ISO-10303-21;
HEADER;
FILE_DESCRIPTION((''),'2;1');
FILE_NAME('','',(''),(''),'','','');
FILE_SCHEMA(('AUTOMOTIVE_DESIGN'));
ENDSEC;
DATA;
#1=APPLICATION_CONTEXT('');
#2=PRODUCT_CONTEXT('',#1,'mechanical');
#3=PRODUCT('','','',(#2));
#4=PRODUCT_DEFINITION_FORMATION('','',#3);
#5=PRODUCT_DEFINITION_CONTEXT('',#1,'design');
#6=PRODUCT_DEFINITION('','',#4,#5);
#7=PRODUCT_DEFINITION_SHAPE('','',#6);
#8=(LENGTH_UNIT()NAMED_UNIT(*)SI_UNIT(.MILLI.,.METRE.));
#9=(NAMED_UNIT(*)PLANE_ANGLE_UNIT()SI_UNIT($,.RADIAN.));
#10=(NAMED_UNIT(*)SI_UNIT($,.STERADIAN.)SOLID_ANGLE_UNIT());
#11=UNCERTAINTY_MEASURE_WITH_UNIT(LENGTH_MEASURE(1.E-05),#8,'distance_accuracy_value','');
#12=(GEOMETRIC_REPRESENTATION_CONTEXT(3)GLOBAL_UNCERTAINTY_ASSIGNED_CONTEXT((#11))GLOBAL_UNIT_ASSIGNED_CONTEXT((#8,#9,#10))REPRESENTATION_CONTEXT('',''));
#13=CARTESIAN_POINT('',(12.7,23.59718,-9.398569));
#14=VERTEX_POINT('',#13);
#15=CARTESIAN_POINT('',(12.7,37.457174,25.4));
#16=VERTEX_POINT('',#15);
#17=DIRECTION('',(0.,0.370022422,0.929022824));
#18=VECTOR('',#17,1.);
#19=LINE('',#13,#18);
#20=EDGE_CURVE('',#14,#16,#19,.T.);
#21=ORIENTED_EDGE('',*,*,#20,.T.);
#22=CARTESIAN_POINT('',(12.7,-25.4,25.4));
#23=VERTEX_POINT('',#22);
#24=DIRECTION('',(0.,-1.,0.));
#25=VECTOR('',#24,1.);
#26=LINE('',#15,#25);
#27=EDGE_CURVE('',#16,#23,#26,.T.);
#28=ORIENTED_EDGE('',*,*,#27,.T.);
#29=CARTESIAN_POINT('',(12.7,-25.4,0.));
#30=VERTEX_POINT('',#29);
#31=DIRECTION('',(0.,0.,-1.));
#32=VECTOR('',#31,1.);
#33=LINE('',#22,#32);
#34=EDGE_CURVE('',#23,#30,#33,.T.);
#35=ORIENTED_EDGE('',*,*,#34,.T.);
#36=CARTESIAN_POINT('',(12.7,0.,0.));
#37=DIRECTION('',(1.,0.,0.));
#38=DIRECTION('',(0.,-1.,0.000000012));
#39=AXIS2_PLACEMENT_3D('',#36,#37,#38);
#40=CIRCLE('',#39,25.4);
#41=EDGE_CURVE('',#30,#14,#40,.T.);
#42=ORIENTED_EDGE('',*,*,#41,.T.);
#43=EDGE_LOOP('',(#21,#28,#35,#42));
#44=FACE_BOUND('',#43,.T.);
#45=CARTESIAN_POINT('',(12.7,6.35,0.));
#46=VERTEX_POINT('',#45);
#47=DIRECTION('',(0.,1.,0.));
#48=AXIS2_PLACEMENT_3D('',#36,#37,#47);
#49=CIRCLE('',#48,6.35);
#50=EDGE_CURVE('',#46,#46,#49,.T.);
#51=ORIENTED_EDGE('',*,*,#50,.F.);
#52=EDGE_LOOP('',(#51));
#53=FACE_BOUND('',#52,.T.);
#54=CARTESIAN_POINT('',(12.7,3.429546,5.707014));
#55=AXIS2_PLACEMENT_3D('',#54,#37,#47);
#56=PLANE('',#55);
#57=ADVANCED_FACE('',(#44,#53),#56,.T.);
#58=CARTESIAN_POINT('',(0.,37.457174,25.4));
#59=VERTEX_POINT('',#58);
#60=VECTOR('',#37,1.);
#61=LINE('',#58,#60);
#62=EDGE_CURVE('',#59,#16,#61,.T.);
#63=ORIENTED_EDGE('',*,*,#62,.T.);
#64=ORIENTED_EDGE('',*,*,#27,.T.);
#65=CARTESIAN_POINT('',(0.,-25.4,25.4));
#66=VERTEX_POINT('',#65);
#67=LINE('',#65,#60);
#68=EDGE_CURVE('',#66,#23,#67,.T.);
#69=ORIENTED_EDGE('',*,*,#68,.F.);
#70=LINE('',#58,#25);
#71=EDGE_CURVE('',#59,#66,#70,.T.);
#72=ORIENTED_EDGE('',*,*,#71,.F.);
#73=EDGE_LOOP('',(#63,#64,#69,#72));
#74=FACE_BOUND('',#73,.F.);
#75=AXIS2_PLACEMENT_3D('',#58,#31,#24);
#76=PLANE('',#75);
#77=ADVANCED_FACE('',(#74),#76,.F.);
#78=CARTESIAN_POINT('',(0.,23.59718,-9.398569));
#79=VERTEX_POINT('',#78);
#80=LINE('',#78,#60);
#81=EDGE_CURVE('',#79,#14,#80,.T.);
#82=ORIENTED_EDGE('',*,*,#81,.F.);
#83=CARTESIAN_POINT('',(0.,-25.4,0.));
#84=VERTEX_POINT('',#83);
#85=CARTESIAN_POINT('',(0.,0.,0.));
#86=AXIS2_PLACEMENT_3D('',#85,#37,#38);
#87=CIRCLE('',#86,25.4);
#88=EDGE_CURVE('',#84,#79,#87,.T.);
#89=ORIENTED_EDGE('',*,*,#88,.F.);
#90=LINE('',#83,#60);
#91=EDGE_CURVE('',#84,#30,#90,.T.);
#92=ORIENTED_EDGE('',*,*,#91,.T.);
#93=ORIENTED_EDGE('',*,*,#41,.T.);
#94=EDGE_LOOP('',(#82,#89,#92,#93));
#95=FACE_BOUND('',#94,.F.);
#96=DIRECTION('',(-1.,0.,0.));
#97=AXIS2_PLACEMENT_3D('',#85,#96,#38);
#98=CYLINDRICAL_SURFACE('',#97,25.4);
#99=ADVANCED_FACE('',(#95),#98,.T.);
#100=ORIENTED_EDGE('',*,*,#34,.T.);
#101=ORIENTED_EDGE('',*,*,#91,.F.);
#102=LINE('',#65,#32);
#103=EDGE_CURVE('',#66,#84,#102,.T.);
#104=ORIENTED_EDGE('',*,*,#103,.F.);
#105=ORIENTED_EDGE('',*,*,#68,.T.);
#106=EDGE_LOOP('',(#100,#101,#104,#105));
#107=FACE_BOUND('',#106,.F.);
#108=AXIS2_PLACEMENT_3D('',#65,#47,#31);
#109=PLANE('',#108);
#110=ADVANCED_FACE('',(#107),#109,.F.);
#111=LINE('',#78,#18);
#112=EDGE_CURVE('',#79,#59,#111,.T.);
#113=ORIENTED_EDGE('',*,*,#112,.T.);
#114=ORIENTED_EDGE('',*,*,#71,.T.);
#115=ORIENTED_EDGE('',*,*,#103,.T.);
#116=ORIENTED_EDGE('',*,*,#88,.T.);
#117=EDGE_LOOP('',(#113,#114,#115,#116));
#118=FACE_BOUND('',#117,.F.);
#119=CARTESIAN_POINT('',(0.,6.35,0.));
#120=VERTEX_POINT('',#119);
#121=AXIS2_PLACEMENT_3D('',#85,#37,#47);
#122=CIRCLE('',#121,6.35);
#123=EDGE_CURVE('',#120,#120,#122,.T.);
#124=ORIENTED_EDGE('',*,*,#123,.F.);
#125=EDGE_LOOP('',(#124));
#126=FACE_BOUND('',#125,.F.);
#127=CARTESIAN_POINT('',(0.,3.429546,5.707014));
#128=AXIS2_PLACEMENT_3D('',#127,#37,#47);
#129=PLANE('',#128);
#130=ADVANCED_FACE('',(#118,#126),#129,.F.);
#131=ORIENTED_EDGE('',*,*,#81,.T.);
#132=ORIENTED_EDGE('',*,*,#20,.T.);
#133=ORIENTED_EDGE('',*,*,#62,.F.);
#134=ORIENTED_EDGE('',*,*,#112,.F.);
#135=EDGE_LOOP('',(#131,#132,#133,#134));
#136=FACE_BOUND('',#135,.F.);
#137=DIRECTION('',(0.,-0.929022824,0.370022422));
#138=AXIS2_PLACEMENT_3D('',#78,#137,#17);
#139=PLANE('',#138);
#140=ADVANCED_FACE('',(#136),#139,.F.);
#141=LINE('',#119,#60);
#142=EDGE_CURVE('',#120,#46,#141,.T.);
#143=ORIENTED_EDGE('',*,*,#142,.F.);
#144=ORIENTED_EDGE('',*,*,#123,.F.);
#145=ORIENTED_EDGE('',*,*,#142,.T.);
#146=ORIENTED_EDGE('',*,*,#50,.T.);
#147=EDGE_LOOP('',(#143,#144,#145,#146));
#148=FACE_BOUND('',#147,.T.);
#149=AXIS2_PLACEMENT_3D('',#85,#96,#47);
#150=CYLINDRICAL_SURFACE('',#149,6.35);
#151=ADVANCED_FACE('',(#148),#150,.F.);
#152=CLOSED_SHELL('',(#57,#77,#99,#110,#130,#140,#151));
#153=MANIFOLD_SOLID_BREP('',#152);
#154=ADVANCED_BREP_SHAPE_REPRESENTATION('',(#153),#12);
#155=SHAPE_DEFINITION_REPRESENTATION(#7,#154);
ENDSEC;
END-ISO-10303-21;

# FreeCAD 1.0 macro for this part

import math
import FreeCAD as App
import Part
import Sketcher

V = App.Vector
Q = App.Units.Quantity

doc = App.newDocument("Part")
params = doc.addObject("Spreadsheet::Sheet", "Params")
for row, (alias, value) in enumerate([
    ("sketch1_radius", "1 in"),
    ("sketch1_diameter", "0.5 in"),
    ("sketch1_height", "1 in"),
    ("pad1_length", "0.5 in"),
], start=1):
    params.set(f"A{row}", alias)
    params.set(f"B{row}", "=" + value)
    params.setAlias(f"B{row}", alias)

body = doc.addObject("PartDesign::Body", "Body")

sketch1 = body.newObject("Sketcher::SketchObject", "Sketch")
sketch1.AttachmentSupport = (doc.getObject("YZ_Plane"), [""])
sketch1.MapMode = "FlatFace"
sketch1.addGeometry([
    Part.LineSegment(V(37, 25, 0), V(-25, 25, 0)),
    Part.LineSegment(V(-25, 25, 0), V(-25, 0, 0)),
    Part.ArcOfCircle(Part.Circle(V(0, 0, 0), V(0, 0, 1), 25), math.radians(180), math.radians(338)),
    Part.LineSegment(V(24, -9, 0), V(37, 25, 0)),
    Part.Circle(V(0, 0, 0), V(0, 0, 1), 6),
], False)
sketch1.addConstraint([
    Sketcher.Constraint("Coincident", 0, 2, 1, 1),
    Sketcher.Constraint("Tangent", 1, 2, 2, 1),
    Sketcher.Constraint("Tangent", 2, 2, 3, 1),
    Sketcher.Constraint("Coincident", 3, 2, 0, 1),
    Sketcher.Constraint("Horizontal", 0),
    Sketcher.Constraint("Vertical", 1),
    Sketcher.Constraint("Coincident", 2, 3, -1, 1),
    Sketcher.Constraint("Coincident", 4, 3, -1, 1),
    Sketcher.Constraint("Radius", 2, Q("1 in")),
    Sketcher.Constraint("Diameter", 4, Q("0.5 in")),
    Sketcher.Constraint("DistanceY", 1, 2, 1, 1, Q("1 in")),
    Sketcher.Constraint("DistanceX", 0, 2, 0, 1, Q("62.857174 mm")),
])
sketch1.setExpression("Constraints[8]", "Params.sketch1_radius")
sketch1.setExpression("Constraints[9]", "Params.sketch1_diameter")
sketch1.setExpression("Constraints[10]", "Params.sketch1_height")
pad1 = body.newObject("PartDesign::Pad", "Pad")
pad1.Profile = sketch1
pad1.setExpression("Length", "Params.pad1_length")

doc.recompute()
